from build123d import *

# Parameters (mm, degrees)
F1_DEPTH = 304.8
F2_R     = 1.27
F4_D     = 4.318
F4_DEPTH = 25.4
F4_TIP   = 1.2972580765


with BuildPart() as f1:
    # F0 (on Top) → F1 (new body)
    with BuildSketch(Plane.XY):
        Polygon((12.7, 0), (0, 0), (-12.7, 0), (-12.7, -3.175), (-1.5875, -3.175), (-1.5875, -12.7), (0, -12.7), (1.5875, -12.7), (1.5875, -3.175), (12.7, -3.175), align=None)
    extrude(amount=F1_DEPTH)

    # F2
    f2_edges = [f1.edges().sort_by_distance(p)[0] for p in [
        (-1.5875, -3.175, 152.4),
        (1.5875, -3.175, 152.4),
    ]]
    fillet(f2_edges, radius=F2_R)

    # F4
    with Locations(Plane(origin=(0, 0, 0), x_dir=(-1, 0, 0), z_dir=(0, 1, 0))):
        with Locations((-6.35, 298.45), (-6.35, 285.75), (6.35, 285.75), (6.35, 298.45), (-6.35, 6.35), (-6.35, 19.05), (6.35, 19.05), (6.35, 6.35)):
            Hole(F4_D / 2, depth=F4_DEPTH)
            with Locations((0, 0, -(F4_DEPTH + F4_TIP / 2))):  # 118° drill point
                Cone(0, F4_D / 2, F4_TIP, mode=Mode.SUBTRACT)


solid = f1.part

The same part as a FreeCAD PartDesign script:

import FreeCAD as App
import Part
import Sketcher

V = App.Vector
Q = App.Units.Quantity


def edges_at(feature, points):
    """Names of the edges that pass closest to the given points."""
    edges = feature.Shape.Edges
    near = lambda p: min(range(len(edges)), key=lambda i: edges[i].distToShape(Part.Vertex(*p))[0])
    return sorted({f"Edge{near(p) + 1}" for p in points})


def add_polygon(sketch, points):
    """Adds a closed chain of lines whose ends are joined by coincident constraints."""
    first, n = sketch.GeometryCount, len(points)
    for a, b in zip(points, points[1:] + points[:1]):
        sketch.addGeometry(Part.LineSegment(App.Vector(*a, 0), App.Vector(*b, 0)), False)
    for i in range(n):
        sketch.addConstraint(Sketcher.Constraint("Coincident", first + i, 2, first + (i + 1) % n, 1))

doc = App.newDocument("Part")
body = doc.addObject("PartDesign::Body", "Body")

# Sketch on XY plane
sketch1 = doc.addObject("Sketcher::SketchObject", "Sketch")
body.addObject(sketch1)
sketch1.AttachmentSupport = (doc.XY_Plane, [""])
sketch1.MapMode = "FlatFace"
add_polygon(sketch1, [(12.7, 0), (-12.7, 0), (-12.7, -3.2), (-1.6, -3.2), (-1.6, -12.7), (1.6, -12.7), (1.6, -3.2), (12.7, -3.2)])  # lines 0-7
sketch1.addConstraint(Sketcher.Constraint("Horizontal", 0))
sketch1.addConstraint(Sketcher.Constraint("Vertical", 1))
sketch1.addConstraint(Sketcher.Constraint("Horizontal", 2))
sketch1.addConstraint(Sketcher.Constraint("Vertical", 3))
sketch1.addConstraint(Sketcher.Constraint("Horizontal", 4))
sketch1.addConstraint(Sketcher.Constraint("Vertical", 5))
sketch1.addConstraint(Sketcher.Constraint("Horizontal", 6))
sketch1.addConstraint(Sketcher.Constraint("Vertical", 7))
sketch1.addConstraint(Sketcher.Constraint("Symmetric", 0, 2, 7, 2, -1, 1))
sketch1.addConstraint(Sketcher.Constraint("Symmetric", 2, 2, 5, 2, -2))
sketch1.addConstraint(Sketcher.Constraint("Equal", 4, 1))
sketch1.addConstraint(Sketcher.Constraint("DistanceX", 0, 2, 0, 1, Q("1 in")))
sketch1.addConstraint(Sketcher.Constraint("DistanceY", 3, 2, -1, 1, Q("0.5 in")))
sketch1.addConstraint(Sketcher.Constraint("DistanceX", 2, 1, 2, 2, Q("0.4375 in")))
pad1 = doc.addObject("PartDesign::Pad", "Pad")
body.addObject(pad1)
pad1.Profile = sketch1
pad1.Length = Q("12 in")
doc.recompute()

fillet = doc.addObject("PartDesign::Fillet", "Fillet")
body.addObject(fillet)
fillet.Base = (pad1, edges_at(pad1, [(-1.587, -3.175, 152.4), (1.587, -3.175, 152.4)]))
fillet.Radius = Q("0.05 in")

# Sketch on XZ plane
sketch2 = doc.addObject("Sketcher::SketchObject", "Sketch001")
body.addObject(sketch2)
sketch2.AttachmentSupport = (doc.XZ_Plane, [""])
sketch2.MapMode = "FlatFace"
sketch2.addGeometry(Part.Circle(V(6.3, 298.4, 0), V(0, 0, 1), 2.2), False)
sketch2.addGeometry(Part.Circle(V(6.3, 285.8, 0), V(0, 0, 1), 2.2), False)
sketch2.addGeometry(Part.Circle(V(-6.3, 285.8, 0), V(0, 0, 1), 2.2), False)
sketch2.addGeometry(Part.Circle(V(-6.3, 298.4, 0), V(0, 0, 1), 2.2), False)
sketch2.addGeometry(Part.Circle(V(6.3, 6.3, 0), V(0, 0, 1), 2.2), False)
sketch2.addGeometry(Part.Circle(V(6.3, 19.1, 0), V(0, 0, 1), 2.2), False)
sketch2.addGeometry(Part.Circle(V(-6.3, 19.1, 0), V(0, 0, 1), 2.2), False)
sketch2.addGeometry(Part.Circle(V(-6.3, 6.3, 0), V(0, 0, 1), 2.2), False)
sketch2.addConstraint(Sketcher.Constraint("Equal", 0, 1))
sketch2.addConstraint(Sketcher.Constraint("Equal", 1, 2))
sketch2.addConstraint(Sketcher.Constraint("Equal", 2, 3))
sketch2.addConstraint(Sketcher.Constraint("Equal", 3, 4))
sketch2.addConstraint(Sketcher.Constraint("Equal", 4, 5))
sketch2.addConstraint(Sketcher.Constraint("Equal", 5, 6))
sketch2.addConstraint(Sketcher.Constraint("Equal", 6, 7))
sketch2.addConstraint(Sketcher.Constraint("Symmetric", 1, 3, 2, 3, -2))
sketch2.addConstraint(Sketcher.Constraint("Symmetric", 0, 3, 3, 3, -2))
sketch2.addConstraint(Sketcher.Constraint("Symmetric", 5, 3, 6, 3, -2))
sketch2.addConstraint(Sketcher.Constraint("Symmetric", 4, 3, 7, 3, -2))
sketch2.addConstraint(Sketcher.Constraint("Vertical", 0, 3, 1, 3))
sketch2.addConstraint(Sketcher.Constraint("Vertical", 1, 3, 4, 3))
sketch2.addConstraint(Sketcher.Constraint("Vertical", 4, 3, 5, 3))
sketch2.addConstraint(Sketcher.Constraint("Diameter", 0, Q("0.17 in")))
sketch2.addConstraint(Sketcher.Constraint("DistanceY", 4, 3, 1, 3, Q("11 in")))
sketch2.addConstraint(Sketcher.Constraint("DistanceY", 5, 3, 0, 3, Q("11 in")))
sketch2.addConstraint(Sketcher.Constraint("DistanceY", 1, 3, 0, 3, Q("0.5 in")))
sketch2.addConstraint(Sketcher.Constraint("DistanceX", 2, 3, 1, 3, Q("0.5 in")))
sketch2.addConstraint(Sketcher.Constraint("DistanceY", -1, 1, 0, 3, Q("11.75 in")))
doc.recompute()
hole = doc.addObject("PartDesign::Hole", "Hole")
body.addObject(hole)
hole.Profile = sketch2
hole.ThreadType = "None"
hole.Diameter = Q("0.17 in")
hole.DepthType = "Dimension"
hole.Depth = Q("1 in")
hole.DrillPoint = "Angled"
hole.DrillPointAngle = 118
hole.Reversed = True

doc.recompute()
